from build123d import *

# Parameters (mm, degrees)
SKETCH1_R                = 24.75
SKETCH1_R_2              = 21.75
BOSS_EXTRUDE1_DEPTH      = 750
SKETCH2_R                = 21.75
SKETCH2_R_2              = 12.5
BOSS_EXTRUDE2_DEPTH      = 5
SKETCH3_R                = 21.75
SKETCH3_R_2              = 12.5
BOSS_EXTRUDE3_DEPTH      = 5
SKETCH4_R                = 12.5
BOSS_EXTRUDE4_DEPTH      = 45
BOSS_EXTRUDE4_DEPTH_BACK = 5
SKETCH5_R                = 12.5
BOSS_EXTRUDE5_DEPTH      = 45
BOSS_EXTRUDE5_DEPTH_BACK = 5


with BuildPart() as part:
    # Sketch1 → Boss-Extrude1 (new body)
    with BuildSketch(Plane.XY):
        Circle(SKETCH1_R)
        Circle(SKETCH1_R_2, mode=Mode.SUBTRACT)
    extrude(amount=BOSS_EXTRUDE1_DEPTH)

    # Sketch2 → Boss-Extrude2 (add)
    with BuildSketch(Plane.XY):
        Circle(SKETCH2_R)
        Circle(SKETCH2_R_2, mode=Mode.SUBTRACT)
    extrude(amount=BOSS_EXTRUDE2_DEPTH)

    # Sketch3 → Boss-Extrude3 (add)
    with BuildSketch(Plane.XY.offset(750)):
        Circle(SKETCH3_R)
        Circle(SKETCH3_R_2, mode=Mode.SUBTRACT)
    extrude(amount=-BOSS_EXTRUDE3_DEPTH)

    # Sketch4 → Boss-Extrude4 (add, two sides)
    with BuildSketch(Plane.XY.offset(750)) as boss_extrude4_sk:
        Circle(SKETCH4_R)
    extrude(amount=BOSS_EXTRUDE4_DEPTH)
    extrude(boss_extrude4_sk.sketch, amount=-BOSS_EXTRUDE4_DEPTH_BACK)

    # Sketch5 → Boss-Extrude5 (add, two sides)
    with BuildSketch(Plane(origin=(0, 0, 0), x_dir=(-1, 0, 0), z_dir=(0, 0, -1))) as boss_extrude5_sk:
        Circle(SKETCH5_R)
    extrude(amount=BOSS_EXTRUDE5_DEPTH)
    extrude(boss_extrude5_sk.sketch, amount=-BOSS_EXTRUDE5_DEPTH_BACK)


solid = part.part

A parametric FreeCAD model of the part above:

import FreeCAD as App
import Part
import Sketcher

doc = App.newDocument("Part")
body = doc.addObject("PartDesign::Body", "Body")

sketch1 = body.newObject("Sketcher::SketchObject", "Sketch")
sketch1.AttachmentSupport = (doc.getObject("XY_Plane"), [""])
sketch1.MapMode = "FlatFace"
sketch1.addGeometry(Part.Circle(App.Vector(0, 0, 0), App.Vector(0, 0, 1), 25), False)
sketch1.addGeometry(Part.Circle(App.Vector(0, 0, 0), App.Vector(0, 0, 1), 22), False)
sketch1.addConstraint(Sketcher.Constraint("Coincident", 0, 3, -1, 1))
sketch1.addConstraint(Sketcher.Constraint("Coincident", 1, 3, -1, 1))
sketch1.addConstraint(Sketcher.Constraint("Diameter", 0, 49.5))
sketch1.addConstraint(Sketcher.Constraint("Diameter", 1, 43.5))
pad1 = body.newObject("PartDesign::Pad", "Pad")
pad1.Profile = sketch1
pad1.Length = 750

sketch2 = body.newObject("Sketcher::SketchObject", "Sketch001")
sketch2.AttachmentSupport = (doc.getObject("XY_Plane"), [""])
sketch2.MapMode = "FlatFace"
sketch2.addGeometry(Part.Circle(App.Vector(0, 0, 0), App.Vector(0, 0, 1), 22), False)
sketch2.addGeometry(Part.Circle(App.Vector(0, 0, 0), App.Vector(0, 0, 1), 12), False)
sketch2.addConstraint(Sketcher.Constraint("Coincident", 0, 3, -1, 1))
sketch2.addConstraint(Sketcher.Constraint("Coincident", 1, 3, -1, 1))
sketch2.addConstraint(Sketcher.Constraint("Diameter", 1, 25.0))
sketch2.addConstraint(Sketcher.Constraint("Diameter", 0, 43.5))
pad2 = body.newObject("PartDesign::Pad", "Pad001")
pad2.Profile = sketch2
pad2.Length = 5

sketch3 = body.newObject("Sketcher::SketchObject", "Sketch002")
sketch3.AttachmentSupport = (doc.getObject("XY_Plane"), [""])
sketch3.MapMode = "FlatFace"
sketch3.AttachmentOffset = App.Placement(App.Vector(0, 0, 750), App.Rotation())
sketch3.addGeometry(Part.Circle(App.Vector(0, 0, 0), App.Vector(0, 0, 1), 22), False)
sketch3.addGeometry(Part.Circle(App.Vector(0, 0, 0), App.Vector(0, 0, 1), 12), False)
sketch3.addConstraint(Sketcher.Constraint("Coincident", 0, 3, -1, 1))
sketch3.addConstraint(Sketcher.Constraint("Coincident", 1, 3, -1, 1))
sketch3.addConstraint(Sketcher.Constraint("Diameter", 1, 25.0))
sketch3.addConstraint(Sketcher.Constraint("Diameter", 0, 43.5))
pad3 = body.newObject("PartDesign::Pad", "Pad002")
pad3.Profile = sketch3
pad3.Length = 5
pad3.Reversed = True

sketch4 = body.newObject("Sketcher::SketchObject", "Sketch003")
sketch4.AttachmentSupport = (doc.getObject("XY_Plane"), [""])
sketch4.MapMode = "FlatFace"
sketch4.AttachmentOffset = App.Placement(App.Vector(0, 0, 750), App.Rotation())
sketch4.addGeometry(Part.Circle(App.Vector(0, 0, 0), App.Vector(0, 0, 1), 12), False)
sketch4.addConstraint(Sketcher.Constraint("Coincident", 0, 3, -1, 1))
sketch4.addConstraint(Sketcher.Constraint("Diameter", 0, 25.0))
pad4 = body.newObject("PartDesign::Pad", "Pad003")
pad4.Profile = sketch4
pad4.Type = "TwoLengths"
pad4.Length = 45
pad4.Length2 = 5

sketch5 = body.newObject("Sketcher::SketchObject", "Sketch004")
sketch5.AttachmentSupport = (doc.getObject("XY_Plane"), [""])
sketch5.MapMode = "FlatFace"
sketch5.addGeometry(Part.Circle(App.Vector(0, 0, 0), App.Vector(0, 0, 1), 12), False)
sketch5.addConstraint(Sketcher.Constraint("Coincident", 0, 3, -1, 1))
sketch5.addConstraint(Sketcher.Constraint("Diameter", 0, 25.0))
pad5 = body.newObject("PartDesign::Pad", "Pad004")
pad5.Profile = sketch5
pad5.Type = "TwoLengths"
pad5.Length = 45
pad5.Length2 = 5
pad5.Reversed = True

doc.recompute()
